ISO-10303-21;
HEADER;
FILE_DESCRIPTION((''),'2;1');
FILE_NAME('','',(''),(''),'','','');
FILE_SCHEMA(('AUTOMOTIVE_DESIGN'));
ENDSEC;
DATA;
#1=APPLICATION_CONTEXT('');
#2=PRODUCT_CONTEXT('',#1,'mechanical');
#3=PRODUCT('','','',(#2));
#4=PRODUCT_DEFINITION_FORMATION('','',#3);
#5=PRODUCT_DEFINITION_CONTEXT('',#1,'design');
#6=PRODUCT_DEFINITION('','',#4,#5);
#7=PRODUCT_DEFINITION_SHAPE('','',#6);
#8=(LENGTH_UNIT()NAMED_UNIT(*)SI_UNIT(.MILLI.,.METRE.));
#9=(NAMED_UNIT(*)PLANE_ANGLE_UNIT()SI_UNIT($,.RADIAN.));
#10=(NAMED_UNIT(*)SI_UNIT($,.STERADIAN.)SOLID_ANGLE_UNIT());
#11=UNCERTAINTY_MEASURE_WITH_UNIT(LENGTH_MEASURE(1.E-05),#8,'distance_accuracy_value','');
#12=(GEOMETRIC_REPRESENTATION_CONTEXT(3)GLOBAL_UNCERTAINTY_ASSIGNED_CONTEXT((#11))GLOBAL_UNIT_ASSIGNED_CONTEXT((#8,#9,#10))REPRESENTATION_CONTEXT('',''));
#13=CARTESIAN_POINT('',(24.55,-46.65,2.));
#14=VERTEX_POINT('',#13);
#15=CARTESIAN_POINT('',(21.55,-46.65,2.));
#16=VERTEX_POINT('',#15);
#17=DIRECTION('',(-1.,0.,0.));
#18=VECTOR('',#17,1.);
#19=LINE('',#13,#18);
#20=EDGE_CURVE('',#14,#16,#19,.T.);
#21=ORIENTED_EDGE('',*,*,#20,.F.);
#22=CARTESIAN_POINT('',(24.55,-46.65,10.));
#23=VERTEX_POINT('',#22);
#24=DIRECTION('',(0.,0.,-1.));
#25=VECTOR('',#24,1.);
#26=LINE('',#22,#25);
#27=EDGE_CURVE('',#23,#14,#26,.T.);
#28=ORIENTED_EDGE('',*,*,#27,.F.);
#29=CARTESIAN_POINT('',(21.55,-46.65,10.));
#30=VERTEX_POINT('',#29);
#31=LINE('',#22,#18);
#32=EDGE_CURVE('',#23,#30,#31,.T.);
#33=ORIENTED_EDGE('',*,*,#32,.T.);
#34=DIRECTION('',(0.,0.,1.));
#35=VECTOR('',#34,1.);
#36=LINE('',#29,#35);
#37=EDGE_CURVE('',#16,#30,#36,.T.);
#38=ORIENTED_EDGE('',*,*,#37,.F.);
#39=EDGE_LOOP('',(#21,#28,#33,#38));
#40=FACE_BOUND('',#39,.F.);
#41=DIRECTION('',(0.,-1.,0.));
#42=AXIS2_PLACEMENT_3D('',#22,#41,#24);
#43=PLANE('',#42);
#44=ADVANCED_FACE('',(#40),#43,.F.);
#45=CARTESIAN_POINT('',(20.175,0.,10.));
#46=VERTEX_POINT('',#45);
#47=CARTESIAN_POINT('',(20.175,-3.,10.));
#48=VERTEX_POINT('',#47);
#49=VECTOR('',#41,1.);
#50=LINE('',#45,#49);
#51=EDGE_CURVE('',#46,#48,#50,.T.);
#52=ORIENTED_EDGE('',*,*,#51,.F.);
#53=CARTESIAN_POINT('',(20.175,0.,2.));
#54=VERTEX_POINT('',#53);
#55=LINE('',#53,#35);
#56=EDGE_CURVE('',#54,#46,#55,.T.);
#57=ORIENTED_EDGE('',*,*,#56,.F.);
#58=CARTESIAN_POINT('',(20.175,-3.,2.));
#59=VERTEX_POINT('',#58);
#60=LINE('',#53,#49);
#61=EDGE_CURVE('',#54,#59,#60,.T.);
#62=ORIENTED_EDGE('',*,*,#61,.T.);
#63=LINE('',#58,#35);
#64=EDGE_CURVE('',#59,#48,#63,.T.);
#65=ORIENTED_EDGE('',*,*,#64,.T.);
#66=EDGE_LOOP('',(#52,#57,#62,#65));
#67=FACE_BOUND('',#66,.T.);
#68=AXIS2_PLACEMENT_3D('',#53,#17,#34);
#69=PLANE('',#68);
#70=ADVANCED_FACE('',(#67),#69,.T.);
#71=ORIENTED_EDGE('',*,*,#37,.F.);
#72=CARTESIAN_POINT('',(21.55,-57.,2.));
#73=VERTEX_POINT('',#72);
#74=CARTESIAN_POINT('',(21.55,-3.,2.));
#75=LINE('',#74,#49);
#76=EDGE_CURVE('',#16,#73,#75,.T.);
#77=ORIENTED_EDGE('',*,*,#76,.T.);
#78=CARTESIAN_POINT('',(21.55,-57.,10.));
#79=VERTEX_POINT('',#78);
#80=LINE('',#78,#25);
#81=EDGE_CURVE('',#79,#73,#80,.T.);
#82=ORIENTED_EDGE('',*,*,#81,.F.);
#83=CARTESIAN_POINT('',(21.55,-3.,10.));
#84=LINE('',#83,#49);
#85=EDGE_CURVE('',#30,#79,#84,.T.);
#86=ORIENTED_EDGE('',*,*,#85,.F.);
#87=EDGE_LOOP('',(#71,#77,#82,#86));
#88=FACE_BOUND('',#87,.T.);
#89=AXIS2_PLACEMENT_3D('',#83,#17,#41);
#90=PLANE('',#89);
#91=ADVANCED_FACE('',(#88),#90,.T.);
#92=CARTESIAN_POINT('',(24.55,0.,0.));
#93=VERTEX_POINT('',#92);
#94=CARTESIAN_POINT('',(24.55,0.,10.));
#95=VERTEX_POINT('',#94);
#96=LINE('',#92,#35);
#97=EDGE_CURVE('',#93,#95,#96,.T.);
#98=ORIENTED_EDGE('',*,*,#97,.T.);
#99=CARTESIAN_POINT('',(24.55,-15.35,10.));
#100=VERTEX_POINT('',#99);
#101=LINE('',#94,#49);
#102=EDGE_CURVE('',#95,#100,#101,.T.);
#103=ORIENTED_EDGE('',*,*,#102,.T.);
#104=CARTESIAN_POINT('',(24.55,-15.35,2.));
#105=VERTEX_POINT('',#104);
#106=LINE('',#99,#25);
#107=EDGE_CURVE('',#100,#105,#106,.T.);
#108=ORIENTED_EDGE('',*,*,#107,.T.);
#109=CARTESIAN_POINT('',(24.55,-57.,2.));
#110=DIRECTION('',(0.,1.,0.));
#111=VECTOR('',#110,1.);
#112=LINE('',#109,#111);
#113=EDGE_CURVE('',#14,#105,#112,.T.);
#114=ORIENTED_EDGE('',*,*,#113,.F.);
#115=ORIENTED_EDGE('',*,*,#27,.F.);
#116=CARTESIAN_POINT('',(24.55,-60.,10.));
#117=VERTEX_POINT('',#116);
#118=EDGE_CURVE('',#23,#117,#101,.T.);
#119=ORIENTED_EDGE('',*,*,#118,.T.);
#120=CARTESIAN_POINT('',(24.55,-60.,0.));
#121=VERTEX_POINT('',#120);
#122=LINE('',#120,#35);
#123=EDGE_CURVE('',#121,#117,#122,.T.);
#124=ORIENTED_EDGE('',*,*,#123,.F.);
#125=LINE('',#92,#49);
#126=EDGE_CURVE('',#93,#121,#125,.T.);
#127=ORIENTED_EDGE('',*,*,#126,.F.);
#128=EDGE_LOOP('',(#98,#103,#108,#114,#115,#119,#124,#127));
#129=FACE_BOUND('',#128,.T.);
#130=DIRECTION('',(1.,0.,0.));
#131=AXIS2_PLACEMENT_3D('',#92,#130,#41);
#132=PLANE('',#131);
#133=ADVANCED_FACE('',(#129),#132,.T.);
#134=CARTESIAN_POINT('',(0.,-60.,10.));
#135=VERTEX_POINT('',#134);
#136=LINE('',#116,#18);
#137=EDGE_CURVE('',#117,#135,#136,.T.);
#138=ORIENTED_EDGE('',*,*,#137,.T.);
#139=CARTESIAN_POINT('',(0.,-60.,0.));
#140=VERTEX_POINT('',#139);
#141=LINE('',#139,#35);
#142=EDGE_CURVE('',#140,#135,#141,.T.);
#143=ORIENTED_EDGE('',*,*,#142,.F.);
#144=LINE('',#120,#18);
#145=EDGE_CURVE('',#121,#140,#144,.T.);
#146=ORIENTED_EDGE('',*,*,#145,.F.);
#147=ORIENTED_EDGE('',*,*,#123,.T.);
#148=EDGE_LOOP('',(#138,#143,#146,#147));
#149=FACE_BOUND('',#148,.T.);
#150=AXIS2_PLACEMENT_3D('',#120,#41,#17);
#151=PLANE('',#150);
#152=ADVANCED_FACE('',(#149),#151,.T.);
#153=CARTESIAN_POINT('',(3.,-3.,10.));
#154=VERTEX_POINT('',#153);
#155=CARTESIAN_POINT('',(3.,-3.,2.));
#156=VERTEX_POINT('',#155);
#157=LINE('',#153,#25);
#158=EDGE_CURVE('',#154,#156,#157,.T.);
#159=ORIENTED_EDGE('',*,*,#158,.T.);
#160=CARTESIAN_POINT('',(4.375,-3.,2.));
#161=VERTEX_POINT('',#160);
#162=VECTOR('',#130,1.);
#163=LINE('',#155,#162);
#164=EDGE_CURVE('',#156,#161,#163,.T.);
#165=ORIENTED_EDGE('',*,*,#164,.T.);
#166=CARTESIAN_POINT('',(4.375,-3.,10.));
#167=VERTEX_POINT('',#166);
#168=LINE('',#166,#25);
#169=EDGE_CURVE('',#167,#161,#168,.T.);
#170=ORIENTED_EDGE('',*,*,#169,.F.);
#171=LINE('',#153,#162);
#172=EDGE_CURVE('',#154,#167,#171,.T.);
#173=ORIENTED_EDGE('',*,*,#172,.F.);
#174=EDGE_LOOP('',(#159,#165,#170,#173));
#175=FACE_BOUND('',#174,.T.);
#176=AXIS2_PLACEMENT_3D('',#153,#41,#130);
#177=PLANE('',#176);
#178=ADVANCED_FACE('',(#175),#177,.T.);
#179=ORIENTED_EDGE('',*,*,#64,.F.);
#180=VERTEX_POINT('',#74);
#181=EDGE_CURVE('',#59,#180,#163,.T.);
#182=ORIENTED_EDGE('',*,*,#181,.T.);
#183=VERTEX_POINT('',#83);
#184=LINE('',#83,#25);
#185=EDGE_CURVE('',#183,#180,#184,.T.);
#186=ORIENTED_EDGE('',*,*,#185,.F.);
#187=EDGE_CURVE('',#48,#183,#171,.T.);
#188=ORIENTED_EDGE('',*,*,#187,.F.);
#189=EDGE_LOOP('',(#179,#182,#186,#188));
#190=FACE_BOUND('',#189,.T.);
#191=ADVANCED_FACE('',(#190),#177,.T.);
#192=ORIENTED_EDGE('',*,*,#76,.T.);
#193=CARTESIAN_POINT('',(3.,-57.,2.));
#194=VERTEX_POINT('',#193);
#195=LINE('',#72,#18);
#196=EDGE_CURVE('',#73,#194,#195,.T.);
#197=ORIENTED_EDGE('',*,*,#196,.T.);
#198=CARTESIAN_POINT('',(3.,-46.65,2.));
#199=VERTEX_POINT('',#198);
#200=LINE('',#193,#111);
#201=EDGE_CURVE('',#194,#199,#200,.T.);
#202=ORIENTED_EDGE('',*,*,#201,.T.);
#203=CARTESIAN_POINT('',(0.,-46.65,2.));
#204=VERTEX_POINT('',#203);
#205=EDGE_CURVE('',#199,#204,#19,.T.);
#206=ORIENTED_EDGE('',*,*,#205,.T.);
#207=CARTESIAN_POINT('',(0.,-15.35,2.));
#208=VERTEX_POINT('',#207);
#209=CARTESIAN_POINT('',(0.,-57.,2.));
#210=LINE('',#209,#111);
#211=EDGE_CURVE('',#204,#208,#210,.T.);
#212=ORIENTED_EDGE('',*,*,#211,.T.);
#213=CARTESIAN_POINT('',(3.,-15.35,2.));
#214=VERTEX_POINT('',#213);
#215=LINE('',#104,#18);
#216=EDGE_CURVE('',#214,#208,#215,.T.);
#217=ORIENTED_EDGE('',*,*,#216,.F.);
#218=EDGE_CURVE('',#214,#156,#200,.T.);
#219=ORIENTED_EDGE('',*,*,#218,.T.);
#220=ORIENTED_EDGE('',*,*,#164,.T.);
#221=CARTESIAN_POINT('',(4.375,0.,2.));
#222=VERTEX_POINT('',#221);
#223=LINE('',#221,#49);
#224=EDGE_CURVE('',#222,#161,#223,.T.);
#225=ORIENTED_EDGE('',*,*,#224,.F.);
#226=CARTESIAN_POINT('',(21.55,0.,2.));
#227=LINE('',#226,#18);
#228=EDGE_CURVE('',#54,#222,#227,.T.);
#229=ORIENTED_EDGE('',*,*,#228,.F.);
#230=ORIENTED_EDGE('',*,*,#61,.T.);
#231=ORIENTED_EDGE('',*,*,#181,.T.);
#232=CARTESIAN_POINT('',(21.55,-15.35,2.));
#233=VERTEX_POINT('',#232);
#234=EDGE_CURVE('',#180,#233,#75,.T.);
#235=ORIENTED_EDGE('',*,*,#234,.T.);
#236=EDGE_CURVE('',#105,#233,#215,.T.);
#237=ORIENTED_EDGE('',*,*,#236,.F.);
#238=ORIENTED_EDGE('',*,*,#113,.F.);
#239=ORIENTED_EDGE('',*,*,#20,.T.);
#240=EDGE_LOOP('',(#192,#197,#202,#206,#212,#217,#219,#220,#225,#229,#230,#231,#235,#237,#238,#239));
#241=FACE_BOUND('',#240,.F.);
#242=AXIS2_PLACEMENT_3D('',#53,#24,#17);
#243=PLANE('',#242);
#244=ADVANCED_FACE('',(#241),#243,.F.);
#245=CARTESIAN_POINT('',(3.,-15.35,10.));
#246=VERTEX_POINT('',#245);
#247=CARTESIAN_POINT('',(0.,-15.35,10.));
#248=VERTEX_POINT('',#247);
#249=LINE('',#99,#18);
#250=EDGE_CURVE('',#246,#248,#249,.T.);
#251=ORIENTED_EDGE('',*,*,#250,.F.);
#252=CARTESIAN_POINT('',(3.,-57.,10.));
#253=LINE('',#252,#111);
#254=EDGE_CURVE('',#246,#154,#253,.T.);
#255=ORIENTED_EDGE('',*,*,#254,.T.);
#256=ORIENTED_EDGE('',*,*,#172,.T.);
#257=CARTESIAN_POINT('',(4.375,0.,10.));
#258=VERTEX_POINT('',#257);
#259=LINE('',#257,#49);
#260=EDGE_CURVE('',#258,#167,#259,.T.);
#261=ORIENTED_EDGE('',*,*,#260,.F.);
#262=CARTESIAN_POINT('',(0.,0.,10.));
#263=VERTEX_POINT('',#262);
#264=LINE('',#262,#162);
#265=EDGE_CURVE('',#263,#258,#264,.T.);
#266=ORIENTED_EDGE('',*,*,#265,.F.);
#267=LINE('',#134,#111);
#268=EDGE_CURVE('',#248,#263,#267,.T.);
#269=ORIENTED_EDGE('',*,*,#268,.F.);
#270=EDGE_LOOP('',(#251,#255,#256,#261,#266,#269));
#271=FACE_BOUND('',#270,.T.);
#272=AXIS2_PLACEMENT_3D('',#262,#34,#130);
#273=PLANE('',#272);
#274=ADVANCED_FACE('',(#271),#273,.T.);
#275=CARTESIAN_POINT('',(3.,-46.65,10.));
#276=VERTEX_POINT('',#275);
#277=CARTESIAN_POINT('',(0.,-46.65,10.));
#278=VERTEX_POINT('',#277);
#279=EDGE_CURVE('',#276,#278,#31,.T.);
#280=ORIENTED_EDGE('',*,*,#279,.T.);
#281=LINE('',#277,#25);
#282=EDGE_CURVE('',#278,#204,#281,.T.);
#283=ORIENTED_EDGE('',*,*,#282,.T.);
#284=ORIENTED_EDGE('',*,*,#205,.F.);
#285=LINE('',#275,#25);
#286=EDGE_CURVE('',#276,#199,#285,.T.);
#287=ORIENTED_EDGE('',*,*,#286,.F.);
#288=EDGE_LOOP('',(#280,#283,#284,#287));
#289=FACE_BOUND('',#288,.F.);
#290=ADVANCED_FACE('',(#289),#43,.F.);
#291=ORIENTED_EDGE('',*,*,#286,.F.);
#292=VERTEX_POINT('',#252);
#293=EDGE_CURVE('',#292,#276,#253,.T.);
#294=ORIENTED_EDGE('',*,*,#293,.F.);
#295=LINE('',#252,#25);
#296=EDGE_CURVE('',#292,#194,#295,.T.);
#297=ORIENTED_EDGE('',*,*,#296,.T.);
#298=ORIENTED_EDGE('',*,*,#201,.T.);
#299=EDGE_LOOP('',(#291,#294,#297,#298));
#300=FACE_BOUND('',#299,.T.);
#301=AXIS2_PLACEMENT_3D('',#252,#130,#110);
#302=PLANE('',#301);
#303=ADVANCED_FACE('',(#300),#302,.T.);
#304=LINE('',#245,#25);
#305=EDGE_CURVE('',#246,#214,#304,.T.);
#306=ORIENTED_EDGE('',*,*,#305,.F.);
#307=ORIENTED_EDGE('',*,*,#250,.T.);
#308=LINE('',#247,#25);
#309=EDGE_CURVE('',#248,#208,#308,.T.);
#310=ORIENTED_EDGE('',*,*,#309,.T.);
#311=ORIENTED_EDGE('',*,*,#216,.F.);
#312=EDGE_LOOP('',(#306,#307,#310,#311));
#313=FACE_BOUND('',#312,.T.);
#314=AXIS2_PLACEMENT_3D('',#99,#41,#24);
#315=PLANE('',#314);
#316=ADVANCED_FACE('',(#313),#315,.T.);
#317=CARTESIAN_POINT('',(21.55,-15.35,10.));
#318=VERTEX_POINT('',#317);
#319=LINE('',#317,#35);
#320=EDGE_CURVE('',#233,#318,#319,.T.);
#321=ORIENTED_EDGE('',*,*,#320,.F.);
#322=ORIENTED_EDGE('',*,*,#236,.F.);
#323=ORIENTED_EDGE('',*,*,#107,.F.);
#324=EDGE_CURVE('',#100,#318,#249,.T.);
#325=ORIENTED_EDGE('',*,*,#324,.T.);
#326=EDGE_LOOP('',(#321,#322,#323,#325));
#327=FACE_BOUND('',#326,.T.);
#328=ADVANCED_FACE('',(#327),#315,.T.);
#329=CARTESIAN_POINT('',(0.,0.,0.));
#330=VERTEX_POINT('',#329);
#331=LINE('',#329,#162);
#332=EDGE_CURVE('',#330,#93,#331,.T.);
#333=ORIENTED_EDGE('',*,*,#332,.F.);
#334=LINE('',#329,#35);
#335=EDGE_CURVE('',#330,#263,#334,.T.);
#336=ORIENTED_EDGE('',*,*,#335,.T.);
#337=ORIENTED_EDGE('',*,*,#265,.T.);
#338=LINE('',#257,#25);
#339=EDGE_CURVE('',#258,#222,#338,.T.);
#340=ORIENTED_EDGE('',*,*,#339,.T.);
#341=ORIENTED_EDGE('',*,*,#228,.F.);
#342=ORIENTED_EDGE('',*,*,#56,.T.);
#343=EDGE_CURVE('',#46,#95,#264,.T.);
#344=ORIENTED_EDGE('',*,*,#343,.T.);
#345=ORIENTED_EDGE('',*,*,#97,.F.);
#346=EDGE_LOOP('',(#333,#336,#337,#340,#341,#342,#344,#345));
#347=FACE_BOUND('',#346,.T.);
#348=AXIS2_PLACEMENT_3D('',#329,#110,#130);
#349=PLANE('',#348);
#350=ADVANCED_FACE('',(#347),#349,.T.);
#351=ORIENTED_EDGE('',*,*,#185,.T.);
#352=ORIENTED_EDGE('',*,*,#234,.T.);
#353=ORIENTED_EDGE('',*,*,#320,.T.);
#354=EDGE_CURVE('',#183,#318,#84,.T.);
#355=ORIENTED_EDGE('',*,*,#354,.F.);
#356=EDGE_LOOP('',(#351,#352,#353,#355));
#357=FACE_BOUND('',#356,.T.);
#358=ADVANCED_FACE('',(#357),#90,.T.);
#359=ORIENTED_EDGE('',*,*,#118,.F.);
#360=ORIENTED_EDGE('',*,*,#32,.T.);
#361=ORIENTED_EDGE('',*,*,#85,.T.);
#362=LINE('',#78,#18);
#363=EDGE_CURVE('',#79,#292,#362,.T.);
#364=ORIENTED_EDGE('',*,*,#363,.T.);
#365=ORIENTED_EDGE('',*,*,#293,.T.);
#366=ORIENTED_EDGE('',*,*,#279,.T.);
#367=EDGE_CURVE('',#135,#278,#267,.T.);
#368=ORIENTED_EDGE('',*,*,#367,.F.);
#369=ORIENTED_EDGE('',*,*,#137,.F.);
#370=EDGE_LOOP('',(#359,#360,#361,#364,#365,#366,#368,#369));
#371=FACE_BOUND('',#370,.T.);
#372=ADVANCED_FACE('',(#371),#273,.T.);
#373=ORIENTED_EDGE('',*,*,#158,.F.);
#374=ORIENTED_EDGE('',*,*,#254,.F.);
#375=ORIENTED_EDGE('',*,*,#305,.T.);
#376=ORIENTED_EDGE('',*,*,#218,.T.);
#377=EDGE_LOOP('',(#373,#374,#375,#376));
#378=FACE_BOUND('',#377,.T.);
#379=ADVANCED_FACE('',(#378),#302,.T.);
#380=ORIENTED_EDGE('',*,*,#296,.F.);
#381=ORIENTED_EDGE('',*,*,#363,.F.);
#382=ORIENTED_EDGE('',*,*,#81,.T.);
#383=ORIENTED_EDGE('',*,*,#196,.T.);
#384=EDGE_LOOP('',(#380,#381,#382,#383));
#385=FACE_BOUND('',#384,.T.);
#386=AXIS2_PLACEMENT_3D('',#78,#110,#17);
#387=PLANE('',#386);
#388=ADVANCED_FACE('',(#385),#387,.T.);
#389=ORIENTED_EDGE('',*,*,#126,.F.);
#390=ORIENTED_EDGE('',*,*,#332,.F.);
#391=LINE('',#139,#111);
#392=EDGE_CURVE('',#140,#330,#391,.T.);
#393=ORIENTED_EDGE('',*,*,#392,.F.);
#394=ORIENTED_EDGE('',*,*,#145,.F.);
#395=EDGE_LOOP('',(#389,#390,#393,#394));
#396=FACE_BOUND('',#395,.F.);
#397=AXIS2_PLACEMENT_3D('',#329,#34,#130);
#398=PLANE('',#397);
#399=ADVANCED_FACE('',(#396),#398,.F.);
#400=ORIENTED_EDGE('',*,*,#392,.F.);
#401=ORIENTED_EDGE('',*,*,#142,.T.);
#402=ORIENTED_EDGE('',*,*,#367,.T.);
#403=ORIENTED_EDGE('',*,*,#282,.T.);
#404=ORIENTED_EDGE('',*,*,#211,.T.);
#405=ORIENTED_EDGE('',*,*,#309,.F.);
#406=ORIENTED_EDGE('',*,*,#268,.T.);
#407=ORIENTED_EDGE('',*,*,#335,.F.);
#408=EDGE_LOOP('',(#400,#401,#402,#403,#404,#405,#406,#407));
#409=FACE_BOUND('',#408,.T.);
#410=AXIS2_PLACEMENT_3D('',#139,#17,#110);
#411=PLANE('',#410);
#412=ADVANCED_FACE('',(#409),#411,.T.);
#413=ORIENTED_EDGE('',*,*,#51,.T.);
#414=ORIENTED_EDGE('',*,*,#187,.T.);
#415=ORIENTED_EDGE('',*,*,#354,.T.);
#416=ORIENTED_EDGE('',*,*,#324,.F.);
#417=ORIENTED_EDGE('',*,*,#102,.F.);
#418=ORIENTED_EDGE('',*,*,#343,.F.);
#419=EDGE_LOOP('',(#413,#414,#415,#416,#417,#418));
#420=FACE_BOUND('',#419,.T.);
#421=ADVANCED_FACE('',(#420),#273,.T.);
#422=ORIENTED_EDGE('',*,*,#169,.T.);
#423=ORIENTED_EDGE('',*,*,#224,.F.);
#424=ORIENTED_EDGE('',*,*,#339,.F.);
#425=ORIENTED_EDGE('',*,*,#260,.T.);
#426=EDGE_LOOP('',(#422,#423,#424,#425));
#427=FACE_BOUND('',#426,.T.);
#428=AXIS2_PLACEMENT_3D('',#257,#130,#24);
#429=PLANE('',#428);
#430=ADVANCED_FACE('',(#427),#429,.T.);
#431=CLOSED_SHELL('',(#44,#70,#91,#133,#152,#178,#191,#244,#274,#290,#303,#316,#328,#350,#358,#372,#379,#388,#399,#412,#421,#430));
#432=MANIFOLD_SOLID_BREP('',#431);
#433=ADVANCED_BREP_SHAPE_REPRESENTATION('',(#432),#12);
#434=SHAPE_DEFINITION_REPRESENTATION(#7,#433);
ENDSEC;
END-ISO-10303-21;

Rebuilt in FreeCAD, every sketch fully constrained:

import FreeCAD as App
import Part
import Sketcher
from FreeCAD import Vector

doc = App.newDocument("Part")
body = doc.addObject("PartDesign::Body", "Body")

# Sketch on XY plane
sketch1 = body.newObject("Sketcher::SketchObject", "Sketch")
sketch1.AttachmentSupport = (doc.getObject("XY_Plane"), [""])
sketch1.MapMode = "FlatFace"
sketch1.addGeometry([
    Part.LineSegment(Vector(24.55, 0, 0), Vector(0, 0, 0)),
    Part.LineSegment(Vector(0, 0, 0), Vector(0, -60, 0)),
    Part.LineSegment(Vector(0, -60, 0), Vector(24.55, -60, 0)),
    Part.LineSegment(Vector(24.55, -60, 0), Vector(24.55, 0, 0)),
], False)
sketch1.addConstraint([
    Sketcher.Constraint("Coincident", 0, 2, 1, 1),
    Sketcher.Constraint("Coincident", 1, 2, 2, 1),
    Sketcher.Constraint("Coincident", 2, 2, 3, 1),
    Sketcher.Constraint("Coincident", 3, 2, 0, 1),
    Sketcher.Constraint("Horizontal", 0),
    Sketcher.Constraint("Vertical", 1),
    Sketcher.Constraint("Horizontal", 2),
    Sketcher.Constraint("Vertical", 3),
    Sketcher.Constraint("Coincident", 0, 2, -1, 1),
    Sketcher.Constraint("DistanceY", 1, 2, 1, 1, 60.0),
    Sketcher.Constraint("DistanceX", 0, 2, 0, 1, 24.55),
])
pad1 = body.newObject("PartDesign::Pad", "Pad")
pad1.Profile = sketch1
pad1.Length = 10

# Sketch on XY plane
sketch2 = body.newObject("Sketcher::SketchObject", "Sketch001")
sketch2.AttachmentSupport = (doc.getObject("XY_Plane"), [""])
sketch2.MapMode = "FlatFace"
sketch2.AttachmentOffset = App.Placement(Vector(0, 0, 10), App.Rotation())
sketch2.addGeometry([
    Part.LineSegment(Vector(21.55, -3, 0), Vector(3, -3, 0)),
    Part.LineSegment(Vector(3, -3, 0), Vector(3, -57, 0)),
    Part.LineSegment(Vector(3, -57, 0), Vector(21.55, -57, 0)),
    Part.LineSegment(Vector(21.55, -57, 0), Vector(21.55, -3, 0)),
], False)
sketch2.addConstraint([
    Sketcher.Constraint("Coincident", 0, 2, 1, 1),
    Sketcher.Constraint("Coincident", 1, 2, 2, 1),
    Sketcher.Constraint("Coincident", 2, 2, 3, 1),
    Sketcher.Constraint("Coincident", 3, 2, 0, 1),
    Sketcher.Constraint("Horizontal", 0),
    Sketcher.Constraint("Vertical", 1),
    Sketcher.Constraint("Horizontal", 2),
    Sketcher.Constraint("Vertical", 3),
    Sketcher.Constraint("DistanceX", -1, 1, 0, 2, 3.0),
    Sketcher.Constraint("DistanceY", 0, 2, -1, 1, 3.0),
    Sketcher.Constraint("DistanceY", 1, 2, 1, 1, 54.0),
    Sketcher.Constraint("DistanceX", 0, 2, 0, 1, 18.55),
])
pocket1 = body.newObject("PartDesign::Pocket", "Pocket")
pocket1.Profile = sketch2
pocket1.Length = 8

# Sketch on YZ plane
sketch3 = body.newObject("Sketcher::SketchObject", "Sketch002")
sketch3.AttachmentSupport = (doc.getObject("YZ_Plane"), [""])
sketch3.MapMode = "FlatFace"
sketch3.AttachmentOffset = App.Placement(Vector(0, 0, 24.55), App.Rotation())
sketch3.addGeometry([
    Part.LineSegment(Vector(-15.35, 2, 0), Vector(-15.35, 10, 0)),
    Part.LineSegment(Vector(-15.35, 10, 0), Vector(-46.65, 10, 0)),
    Part.LineSegment(Vector(-46.65, 10, 0), Vector(-46.65, 2, 0)),
    Part.LineSegment(Vector(-46.65, 2, 0), Vector(-15.35, 2, 0)),
], False)
sketch3.addConstraint([
    Sketcher.Constraint("Coincident", 0, 2, 1, 1),
    Sketcher.Constraint("Coincident", 1, 2, 2, 1),
    Sketcher.Constraint("Coincident", 2, 2, 3, 1),
    Sketcher.Constraint("Coincident", 3, 2, 0, 1),
    Sketcher.Constraint("Vertical", 0),
    Sketcher.Constraint("Horizontal", 1),
    Sketcher.Constraint("Vertical", 2),
    Sketcher.Constraint("Horizontal", 3),
    Sketcher.Constraint("DistanceY", 0, 1, 0, 2, 8.0),
    Sketcher.Constraint("DistanceX", 0, 2, -1, 1, 15.35),
    Sketcher.Constraint("DistanceX", 1, 2, 1, 1, 31.3),
    Sketcher.Constraint("DistanceY", -1, 1, 0, 2, 10.0),
])
pocket2 = body.newObject("PartDesign::Pocket", "Pocket001")
pocket2.Profile = sketch3
pocket2.Length = 24.55

# Sketch on XZ plane
sketch4 = body.newObject("Sketcher::SketchObject", "Sketch003")
sketch4.AttachmentSupport = (doc.getObject("XZ_Plane"), [""])
sketch4.MapMode = "FlatFace"
sketch4.addGeometry([
    Part.LineSegment(Vector(4.375, 2, 0), Vector(4.375, 10, 0)),
    Part.LineSegment(Vector(4.375, 10, 0), Vector(20.175, 10, 0)),
    Part.LineSegment(Vector(20.175, 10, 0), Vector(20.175, 2, 0)),
    Part.LineSegment(Vector(20.175, 2, 0), Vector(4.375, 2, 0)),
], False)
sketch4.addConstraint([
    Sketcher.Constraint("Coincident", 0, 2, 1, 1),
    Sketcher.Constraint("Coincident", 1, 2, 2, 1),
    Sketcher.Constraint("Coincident", 2, 2, 3, 1),
    Sketcher.Constraint("Coincident", 3, 2, 0, 1),
    Sketcher.Constraint("Vertical", 0),
    Sketcher.Constraint("Horizontal", 1),
    Sketcher.Constraint("Vertical", 2),
    Sketcher.Constraint("Horizontal", 3),
    Sketcher.Constraint("DistanceY", 0, 1, 0, 2, 8.0),
    Sketcher.Constraint("DistanceX", 1, 1, 1, 2, 15.8),
    Sketcher.Constraint("DistanceX", -1, 1, 0, 2, 4.375),
    Sketcher.Constraint("DistanceY", -1, 1, 0, 2, 10.0),
])
pocket3 = body.newObject("PartDesign::Pocket", "Pocket002")
pocket3.Profile = sketch4
pocket3.Length = 3
pocket3.Reversed = True

doc.recompute()
